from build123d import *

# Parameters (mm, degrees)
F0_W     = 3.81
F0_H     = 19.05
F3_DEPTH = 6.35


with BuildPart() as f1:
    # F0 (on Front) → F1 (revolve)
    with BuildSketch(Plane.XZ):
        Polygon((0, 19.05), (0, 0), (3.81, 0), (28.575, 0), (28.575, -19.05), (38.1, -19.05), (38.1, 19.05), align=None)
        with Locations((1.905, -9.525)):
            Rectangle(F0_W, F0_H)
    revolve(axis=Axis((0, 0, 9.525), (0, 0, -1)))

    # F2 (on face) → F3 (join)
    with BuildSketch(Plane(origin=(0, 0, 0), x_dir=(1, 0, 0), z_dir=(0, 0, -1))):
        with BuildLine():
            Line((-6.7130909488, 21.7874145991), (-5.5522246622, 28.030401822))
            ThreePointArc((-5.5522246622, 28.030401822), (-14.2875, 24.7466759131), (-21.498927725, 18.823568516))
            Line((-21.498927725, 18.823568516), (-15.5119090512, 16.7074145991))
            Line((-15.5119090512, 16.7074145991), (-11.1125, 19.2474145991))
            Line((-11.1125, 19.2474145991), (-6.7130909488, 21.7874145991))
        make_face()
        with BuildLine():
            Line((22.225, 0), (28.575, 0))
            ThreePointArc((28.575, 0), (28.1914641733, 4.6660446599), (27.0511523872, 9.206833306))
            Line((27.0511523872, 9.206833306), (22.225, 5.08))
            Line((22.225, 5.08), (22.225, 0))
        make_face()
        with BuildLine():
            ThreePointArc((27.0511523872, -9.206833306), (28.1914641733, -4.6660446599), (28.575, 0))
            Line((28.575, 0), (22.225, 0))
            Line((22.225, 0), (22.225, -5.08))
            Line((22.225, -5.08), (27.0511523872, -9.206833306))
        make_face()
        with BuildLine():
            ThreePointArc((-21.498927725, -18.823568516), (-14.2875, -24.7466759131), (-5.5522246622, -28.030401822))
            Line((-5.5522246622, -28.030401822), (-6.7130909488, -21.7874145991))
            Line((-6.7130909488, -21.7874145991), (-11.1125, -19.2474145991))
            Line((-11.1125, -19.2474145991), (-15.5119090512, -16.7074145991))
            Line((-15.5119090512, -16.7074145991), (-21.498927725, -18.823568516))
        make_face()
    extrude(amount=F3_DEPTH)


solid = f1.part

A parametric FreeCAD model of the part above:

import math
import FreeCAD as App
import Part
import Sketcher
Q = App.Units.Quantity

doc = App.newDocument("Part")
body = doc.addObject("PartDesign::Body", "Body")

# Sketch on XZ plane
sketch1 = doc.addObject("Sketcher::SketchObject", "Sketch")
body.addObject(sketch1)
sketch1.AttachmentSupport = (doc.XZ_Plane, [""])
sketch1.MapMode = "FlatFace"
sketch1.addGeometry([
    Part.LineSegment(App.Vector(0, 19.05, 0), App.Vector(0, -19.05, 0)),  # 0
    Part.LineSegment(App.Vector(0, -19.05, 0), App.Vector(3.81, -19.05, 0)),  # 1
    Part.LineSegment(App.Vector(3.81, -19.05, 0), App.Vector(3.81, 0, 0)),  # 2
    Part.LineSegment(App.Vector(3.81, 0, 0), App.Vector(28.575, 0, 0)),  # 3
    Part.LineSegment(App.Vector(28.575, 0, 0), App.Vector(28.575, -19.05, 0)),  # 4
    Part.LineSegment(App.Vector(28.575, -19.05, 0), App.Vector(38.1, -19.05, 0)),  # 5
    Part.LineSegment(App.Vector(38.1, -19.05, 0), App.Vector(38.1, 19.05, 0)),  # 6
    Part.LineSegment(App.Vector(38.1, 19.05, 0), App.Vector(0, 19.05, 0)),  # 7
], False)
sketch1.addConstraint([
    Sketcher.Constraint("Coincident", 0, 2, 1, 1),
    Sketcher.Constraint("Coincident", 1, 2, 2, 1),
    Sketcher.Constraint("Coincident", 2, 2, 3, 1),
    Sketcher.Constraint("Coincident", 3, 2, 4, 1),
    Sketcher.Constraint("Coincident", 4, 2, 5, 1),
    Sketcher.Constraint("Coincident", 5, 2, 6, 1),
    Sketcher.Constraint("Coincident", 6, 2, 7, 1),
    Sketcher.Constraint("Coincident", 7, 2, 0, 1),
    Sketcher.Constraint("Vertical", 0),
    Sketcher.Constraint("Horizontal", 1),
    Sketcher.Constraint("Vertical", 2),
    Sketcher.Constraint("Horizontal", 3),
    Sketcher.Constraint("Vertical", 4),
    Sketcher.Constraint("Horizontal", 5),
    Sketcher.Constraint("Vertical", 6),
    Sketcher.Constraint("Horizontal", 7),
    Sketcher.Constraint("Symmetric", 0, 2, 7, 2, -1, 1),
    Sketcher.Constraint("PointOnObject", 2, 2, -1),
    Sketcher.Constraint("Horizontal", 1, 2, 4, 2),
    Sketcher.Constraint("Equal", 7, 0),
    Sketcher.Constraint("DistanceX", 7, 2, 7, 1, Q("1.5 in")),
    Sketcher.Constraint("DistanceX", 1, 1, 1, 2, Q("0.15 in")),
    Sketcher.Constraint("DistanceX", 3, 1, 3, 2, Q("0.975 in")),
])
revolution = doc.addObject("PartDesign::Revolution", "Revolution")
body.addObject(revolution)
revolution.Profile = sketch1
revolution.ReferenceAxis = (sketch1, ["V_Axis"])
revolution.Angle = 360

# Sketch on XY plane
sketch2 = doc.addObject("Sketcher::SketchObject", "Sketch001")
body.addObject(sketch2)
sketch2.AttachmentSupport = (doc.XY_Plane, [""])
sketch2.MapMode = "FlatFace"
sketch2.addGeometry([
    Part.LineSegment(App.Vector(-6.713091, -21.787415, 0), App.Vector(-5.552225, -28.030402, 0)),  # 0
    Part.ArcOfCircle(Part.Circle(App.Vector(0, 0, 0), App.Vector(0, 0, 1), 28.575), math.radians(-138.795957), math.radians(-101.204043)),  # 1
    Part.LineSegment(App.Vector(-21.498928, -18.823569, 0), App.Vector(-15.511909, -16.707415, 0)),  # 2
    Part.LineSegment(App.Vector(-15.511909, -16.707415, 0), App.Vector(-6.713091, -21.787415, 0)),  # 3
    Part.ArcOfCircle(Part.Circle(App.Vector(0, 0, 0), App.Vector(0, 0, 1), 28.575), math.radians(-18.795957), math.radians(0)),  # 4
    Part.LineSegment(App.Vector(27.051152, -9.206833, 0), App.Vector(22.225, -5.08, 0)),  # 5
    Part.LineSegment(App.Vector(22.225, -5.08, 0), App.Vector(22.225, 5.08, 0)),  # 6
    Part.LineSegment(App.Vector(22.225, 5.08, 0), App.Vector(27.051152, 9.206833, 0)),  # 7
    Part.ArcOfCircle(Part.Circle(App.Vector(0, 0, 0), App.Vector(0, 0, 1), 28.575), math.radians(0), math.radians(18.795957)),  # 8
    Part.ArcOfCircle(Part.Circle(App.Vector(0, 0, 0), App.Vector(0, 0, 1), 28.575), math.radians(101.204043), math.radians(138.795957)),  # 9
    Part.LineSegment(App.Vector(-5.552225, 28.030402, 0), App.Vector(-6.713091, 21.787415, 0)),  # 10
    Part.LineSegment(App.Vector(-6.713091, 21.787415, 0), App.Vector(-15.511909, 16.707415, 0)),  # 11
    Part.LineSegment(App.Vector(-15.511909, 16.707415, 0), App.Vector(-21.498928, 18.823569, 0)),  # 12
], False)
sketch2.addConstraint([
    Sketcher.Constraint("Coincident", 0, 2, 1, 2),
    Sketcher.Constraint("Coincident", 1, 1, 2, 1),
    Sketcher.Constraint("Coincident", 2, 2, 3, 1),
    Sketcher.Constraint("Coincident", 3, 2, 0, 1),
    Sketcher.Constraint("Coincident", 4, 1, 5, 1),
    Sketcher.Constraint("Coincident", 5, 2, 6, 1),
    Sketcher.Constraint("Coincident", 6, 2, 7, 1),
    Sketcher.Constraint("Coincident", 7, 2, 8, 2),
    Sketcher.Constraint("Tangent", 8, 1, 4, 2),
    Sketcher.Constraint("Coincident", 9, 1, 10, 1),
    Sketcher.Constraint("Coincident", 10, 2, 11, 1),
    Sketcher.Constraint("Coincident", 11, 2, 12, 1),
    Sketcher.Constraint("Coincident", 12, 2, 9, 2),
    Sketcher.Constraint("Vertical", 6),
    Sketcher.Constraint("Coincident", 1, 3, -1, 1),
    Sketcher.Constraint("Coincident", 4, 3, -1, 1),
    Sketcher.Constraint("Coincident", 9, 3, -1, 1),
    Sketcher.Constraint("Equal", 1, 4),
    Sketcher.Constraint("Equal", 4, 8),
    Sketcher.Constraint("Equal", 8, 9),
    Sketcher.Constraint("Symmetric", 3, 2, 10, 2, -1),
    Sketcher.Constraint("Symmetric", 2, 2, 11, 2, -1),
    Sketcher.Constraint("PointOnObject", 8, 1, -1),
    Sketcher.Constraint("Vertical", 4, 1, 7, 2),
    Sketcher.Constraint("Vertical", 0, 2, 9, 1),
    Sketcher.Constraint("Vertical", 1, 1, 12, 2),
    Sketcher.Constraint("Equal", 0, 2),
    Sketcher.Constraint("Equal", 2, 5),
    Sketcher.Constraint("Equal", 5, 7),
    Sketcher.Constraint("DistanceY", 6, 1, 6, 2, Q("0.4 in")),
    Sketcher.Constraint("Angle", 3, Q("-30 deg")),
    Sketcher.Constraint("Radius", 1, Q("1.125 in")),
    Sketcher.Constraint("Distance", 3, Q("0.4 in")),
    Sketcher.Constraint("Distance", 0, Q("0.25 in")),
    Sketcher.Constraint("DistanceX", 5, 2, 8, 1, Q("0.25 in")),
    Sketcher.Constraint("DistanceY", 0, 2, -1, 1, Q("28.030402 mm")),
    Sketcher.Constraint("DistanceY", 1, 1, -1, 1, Q("18.823569 mm")),
])
pad1 = doc.addObject("PartDesign::Pad", "Pad")
body.addObject(pad1)
pad1.Profile = sketch2
pad1.Length = Q("0.25 in")
pad1.Reversed = True

doc.recompute()
